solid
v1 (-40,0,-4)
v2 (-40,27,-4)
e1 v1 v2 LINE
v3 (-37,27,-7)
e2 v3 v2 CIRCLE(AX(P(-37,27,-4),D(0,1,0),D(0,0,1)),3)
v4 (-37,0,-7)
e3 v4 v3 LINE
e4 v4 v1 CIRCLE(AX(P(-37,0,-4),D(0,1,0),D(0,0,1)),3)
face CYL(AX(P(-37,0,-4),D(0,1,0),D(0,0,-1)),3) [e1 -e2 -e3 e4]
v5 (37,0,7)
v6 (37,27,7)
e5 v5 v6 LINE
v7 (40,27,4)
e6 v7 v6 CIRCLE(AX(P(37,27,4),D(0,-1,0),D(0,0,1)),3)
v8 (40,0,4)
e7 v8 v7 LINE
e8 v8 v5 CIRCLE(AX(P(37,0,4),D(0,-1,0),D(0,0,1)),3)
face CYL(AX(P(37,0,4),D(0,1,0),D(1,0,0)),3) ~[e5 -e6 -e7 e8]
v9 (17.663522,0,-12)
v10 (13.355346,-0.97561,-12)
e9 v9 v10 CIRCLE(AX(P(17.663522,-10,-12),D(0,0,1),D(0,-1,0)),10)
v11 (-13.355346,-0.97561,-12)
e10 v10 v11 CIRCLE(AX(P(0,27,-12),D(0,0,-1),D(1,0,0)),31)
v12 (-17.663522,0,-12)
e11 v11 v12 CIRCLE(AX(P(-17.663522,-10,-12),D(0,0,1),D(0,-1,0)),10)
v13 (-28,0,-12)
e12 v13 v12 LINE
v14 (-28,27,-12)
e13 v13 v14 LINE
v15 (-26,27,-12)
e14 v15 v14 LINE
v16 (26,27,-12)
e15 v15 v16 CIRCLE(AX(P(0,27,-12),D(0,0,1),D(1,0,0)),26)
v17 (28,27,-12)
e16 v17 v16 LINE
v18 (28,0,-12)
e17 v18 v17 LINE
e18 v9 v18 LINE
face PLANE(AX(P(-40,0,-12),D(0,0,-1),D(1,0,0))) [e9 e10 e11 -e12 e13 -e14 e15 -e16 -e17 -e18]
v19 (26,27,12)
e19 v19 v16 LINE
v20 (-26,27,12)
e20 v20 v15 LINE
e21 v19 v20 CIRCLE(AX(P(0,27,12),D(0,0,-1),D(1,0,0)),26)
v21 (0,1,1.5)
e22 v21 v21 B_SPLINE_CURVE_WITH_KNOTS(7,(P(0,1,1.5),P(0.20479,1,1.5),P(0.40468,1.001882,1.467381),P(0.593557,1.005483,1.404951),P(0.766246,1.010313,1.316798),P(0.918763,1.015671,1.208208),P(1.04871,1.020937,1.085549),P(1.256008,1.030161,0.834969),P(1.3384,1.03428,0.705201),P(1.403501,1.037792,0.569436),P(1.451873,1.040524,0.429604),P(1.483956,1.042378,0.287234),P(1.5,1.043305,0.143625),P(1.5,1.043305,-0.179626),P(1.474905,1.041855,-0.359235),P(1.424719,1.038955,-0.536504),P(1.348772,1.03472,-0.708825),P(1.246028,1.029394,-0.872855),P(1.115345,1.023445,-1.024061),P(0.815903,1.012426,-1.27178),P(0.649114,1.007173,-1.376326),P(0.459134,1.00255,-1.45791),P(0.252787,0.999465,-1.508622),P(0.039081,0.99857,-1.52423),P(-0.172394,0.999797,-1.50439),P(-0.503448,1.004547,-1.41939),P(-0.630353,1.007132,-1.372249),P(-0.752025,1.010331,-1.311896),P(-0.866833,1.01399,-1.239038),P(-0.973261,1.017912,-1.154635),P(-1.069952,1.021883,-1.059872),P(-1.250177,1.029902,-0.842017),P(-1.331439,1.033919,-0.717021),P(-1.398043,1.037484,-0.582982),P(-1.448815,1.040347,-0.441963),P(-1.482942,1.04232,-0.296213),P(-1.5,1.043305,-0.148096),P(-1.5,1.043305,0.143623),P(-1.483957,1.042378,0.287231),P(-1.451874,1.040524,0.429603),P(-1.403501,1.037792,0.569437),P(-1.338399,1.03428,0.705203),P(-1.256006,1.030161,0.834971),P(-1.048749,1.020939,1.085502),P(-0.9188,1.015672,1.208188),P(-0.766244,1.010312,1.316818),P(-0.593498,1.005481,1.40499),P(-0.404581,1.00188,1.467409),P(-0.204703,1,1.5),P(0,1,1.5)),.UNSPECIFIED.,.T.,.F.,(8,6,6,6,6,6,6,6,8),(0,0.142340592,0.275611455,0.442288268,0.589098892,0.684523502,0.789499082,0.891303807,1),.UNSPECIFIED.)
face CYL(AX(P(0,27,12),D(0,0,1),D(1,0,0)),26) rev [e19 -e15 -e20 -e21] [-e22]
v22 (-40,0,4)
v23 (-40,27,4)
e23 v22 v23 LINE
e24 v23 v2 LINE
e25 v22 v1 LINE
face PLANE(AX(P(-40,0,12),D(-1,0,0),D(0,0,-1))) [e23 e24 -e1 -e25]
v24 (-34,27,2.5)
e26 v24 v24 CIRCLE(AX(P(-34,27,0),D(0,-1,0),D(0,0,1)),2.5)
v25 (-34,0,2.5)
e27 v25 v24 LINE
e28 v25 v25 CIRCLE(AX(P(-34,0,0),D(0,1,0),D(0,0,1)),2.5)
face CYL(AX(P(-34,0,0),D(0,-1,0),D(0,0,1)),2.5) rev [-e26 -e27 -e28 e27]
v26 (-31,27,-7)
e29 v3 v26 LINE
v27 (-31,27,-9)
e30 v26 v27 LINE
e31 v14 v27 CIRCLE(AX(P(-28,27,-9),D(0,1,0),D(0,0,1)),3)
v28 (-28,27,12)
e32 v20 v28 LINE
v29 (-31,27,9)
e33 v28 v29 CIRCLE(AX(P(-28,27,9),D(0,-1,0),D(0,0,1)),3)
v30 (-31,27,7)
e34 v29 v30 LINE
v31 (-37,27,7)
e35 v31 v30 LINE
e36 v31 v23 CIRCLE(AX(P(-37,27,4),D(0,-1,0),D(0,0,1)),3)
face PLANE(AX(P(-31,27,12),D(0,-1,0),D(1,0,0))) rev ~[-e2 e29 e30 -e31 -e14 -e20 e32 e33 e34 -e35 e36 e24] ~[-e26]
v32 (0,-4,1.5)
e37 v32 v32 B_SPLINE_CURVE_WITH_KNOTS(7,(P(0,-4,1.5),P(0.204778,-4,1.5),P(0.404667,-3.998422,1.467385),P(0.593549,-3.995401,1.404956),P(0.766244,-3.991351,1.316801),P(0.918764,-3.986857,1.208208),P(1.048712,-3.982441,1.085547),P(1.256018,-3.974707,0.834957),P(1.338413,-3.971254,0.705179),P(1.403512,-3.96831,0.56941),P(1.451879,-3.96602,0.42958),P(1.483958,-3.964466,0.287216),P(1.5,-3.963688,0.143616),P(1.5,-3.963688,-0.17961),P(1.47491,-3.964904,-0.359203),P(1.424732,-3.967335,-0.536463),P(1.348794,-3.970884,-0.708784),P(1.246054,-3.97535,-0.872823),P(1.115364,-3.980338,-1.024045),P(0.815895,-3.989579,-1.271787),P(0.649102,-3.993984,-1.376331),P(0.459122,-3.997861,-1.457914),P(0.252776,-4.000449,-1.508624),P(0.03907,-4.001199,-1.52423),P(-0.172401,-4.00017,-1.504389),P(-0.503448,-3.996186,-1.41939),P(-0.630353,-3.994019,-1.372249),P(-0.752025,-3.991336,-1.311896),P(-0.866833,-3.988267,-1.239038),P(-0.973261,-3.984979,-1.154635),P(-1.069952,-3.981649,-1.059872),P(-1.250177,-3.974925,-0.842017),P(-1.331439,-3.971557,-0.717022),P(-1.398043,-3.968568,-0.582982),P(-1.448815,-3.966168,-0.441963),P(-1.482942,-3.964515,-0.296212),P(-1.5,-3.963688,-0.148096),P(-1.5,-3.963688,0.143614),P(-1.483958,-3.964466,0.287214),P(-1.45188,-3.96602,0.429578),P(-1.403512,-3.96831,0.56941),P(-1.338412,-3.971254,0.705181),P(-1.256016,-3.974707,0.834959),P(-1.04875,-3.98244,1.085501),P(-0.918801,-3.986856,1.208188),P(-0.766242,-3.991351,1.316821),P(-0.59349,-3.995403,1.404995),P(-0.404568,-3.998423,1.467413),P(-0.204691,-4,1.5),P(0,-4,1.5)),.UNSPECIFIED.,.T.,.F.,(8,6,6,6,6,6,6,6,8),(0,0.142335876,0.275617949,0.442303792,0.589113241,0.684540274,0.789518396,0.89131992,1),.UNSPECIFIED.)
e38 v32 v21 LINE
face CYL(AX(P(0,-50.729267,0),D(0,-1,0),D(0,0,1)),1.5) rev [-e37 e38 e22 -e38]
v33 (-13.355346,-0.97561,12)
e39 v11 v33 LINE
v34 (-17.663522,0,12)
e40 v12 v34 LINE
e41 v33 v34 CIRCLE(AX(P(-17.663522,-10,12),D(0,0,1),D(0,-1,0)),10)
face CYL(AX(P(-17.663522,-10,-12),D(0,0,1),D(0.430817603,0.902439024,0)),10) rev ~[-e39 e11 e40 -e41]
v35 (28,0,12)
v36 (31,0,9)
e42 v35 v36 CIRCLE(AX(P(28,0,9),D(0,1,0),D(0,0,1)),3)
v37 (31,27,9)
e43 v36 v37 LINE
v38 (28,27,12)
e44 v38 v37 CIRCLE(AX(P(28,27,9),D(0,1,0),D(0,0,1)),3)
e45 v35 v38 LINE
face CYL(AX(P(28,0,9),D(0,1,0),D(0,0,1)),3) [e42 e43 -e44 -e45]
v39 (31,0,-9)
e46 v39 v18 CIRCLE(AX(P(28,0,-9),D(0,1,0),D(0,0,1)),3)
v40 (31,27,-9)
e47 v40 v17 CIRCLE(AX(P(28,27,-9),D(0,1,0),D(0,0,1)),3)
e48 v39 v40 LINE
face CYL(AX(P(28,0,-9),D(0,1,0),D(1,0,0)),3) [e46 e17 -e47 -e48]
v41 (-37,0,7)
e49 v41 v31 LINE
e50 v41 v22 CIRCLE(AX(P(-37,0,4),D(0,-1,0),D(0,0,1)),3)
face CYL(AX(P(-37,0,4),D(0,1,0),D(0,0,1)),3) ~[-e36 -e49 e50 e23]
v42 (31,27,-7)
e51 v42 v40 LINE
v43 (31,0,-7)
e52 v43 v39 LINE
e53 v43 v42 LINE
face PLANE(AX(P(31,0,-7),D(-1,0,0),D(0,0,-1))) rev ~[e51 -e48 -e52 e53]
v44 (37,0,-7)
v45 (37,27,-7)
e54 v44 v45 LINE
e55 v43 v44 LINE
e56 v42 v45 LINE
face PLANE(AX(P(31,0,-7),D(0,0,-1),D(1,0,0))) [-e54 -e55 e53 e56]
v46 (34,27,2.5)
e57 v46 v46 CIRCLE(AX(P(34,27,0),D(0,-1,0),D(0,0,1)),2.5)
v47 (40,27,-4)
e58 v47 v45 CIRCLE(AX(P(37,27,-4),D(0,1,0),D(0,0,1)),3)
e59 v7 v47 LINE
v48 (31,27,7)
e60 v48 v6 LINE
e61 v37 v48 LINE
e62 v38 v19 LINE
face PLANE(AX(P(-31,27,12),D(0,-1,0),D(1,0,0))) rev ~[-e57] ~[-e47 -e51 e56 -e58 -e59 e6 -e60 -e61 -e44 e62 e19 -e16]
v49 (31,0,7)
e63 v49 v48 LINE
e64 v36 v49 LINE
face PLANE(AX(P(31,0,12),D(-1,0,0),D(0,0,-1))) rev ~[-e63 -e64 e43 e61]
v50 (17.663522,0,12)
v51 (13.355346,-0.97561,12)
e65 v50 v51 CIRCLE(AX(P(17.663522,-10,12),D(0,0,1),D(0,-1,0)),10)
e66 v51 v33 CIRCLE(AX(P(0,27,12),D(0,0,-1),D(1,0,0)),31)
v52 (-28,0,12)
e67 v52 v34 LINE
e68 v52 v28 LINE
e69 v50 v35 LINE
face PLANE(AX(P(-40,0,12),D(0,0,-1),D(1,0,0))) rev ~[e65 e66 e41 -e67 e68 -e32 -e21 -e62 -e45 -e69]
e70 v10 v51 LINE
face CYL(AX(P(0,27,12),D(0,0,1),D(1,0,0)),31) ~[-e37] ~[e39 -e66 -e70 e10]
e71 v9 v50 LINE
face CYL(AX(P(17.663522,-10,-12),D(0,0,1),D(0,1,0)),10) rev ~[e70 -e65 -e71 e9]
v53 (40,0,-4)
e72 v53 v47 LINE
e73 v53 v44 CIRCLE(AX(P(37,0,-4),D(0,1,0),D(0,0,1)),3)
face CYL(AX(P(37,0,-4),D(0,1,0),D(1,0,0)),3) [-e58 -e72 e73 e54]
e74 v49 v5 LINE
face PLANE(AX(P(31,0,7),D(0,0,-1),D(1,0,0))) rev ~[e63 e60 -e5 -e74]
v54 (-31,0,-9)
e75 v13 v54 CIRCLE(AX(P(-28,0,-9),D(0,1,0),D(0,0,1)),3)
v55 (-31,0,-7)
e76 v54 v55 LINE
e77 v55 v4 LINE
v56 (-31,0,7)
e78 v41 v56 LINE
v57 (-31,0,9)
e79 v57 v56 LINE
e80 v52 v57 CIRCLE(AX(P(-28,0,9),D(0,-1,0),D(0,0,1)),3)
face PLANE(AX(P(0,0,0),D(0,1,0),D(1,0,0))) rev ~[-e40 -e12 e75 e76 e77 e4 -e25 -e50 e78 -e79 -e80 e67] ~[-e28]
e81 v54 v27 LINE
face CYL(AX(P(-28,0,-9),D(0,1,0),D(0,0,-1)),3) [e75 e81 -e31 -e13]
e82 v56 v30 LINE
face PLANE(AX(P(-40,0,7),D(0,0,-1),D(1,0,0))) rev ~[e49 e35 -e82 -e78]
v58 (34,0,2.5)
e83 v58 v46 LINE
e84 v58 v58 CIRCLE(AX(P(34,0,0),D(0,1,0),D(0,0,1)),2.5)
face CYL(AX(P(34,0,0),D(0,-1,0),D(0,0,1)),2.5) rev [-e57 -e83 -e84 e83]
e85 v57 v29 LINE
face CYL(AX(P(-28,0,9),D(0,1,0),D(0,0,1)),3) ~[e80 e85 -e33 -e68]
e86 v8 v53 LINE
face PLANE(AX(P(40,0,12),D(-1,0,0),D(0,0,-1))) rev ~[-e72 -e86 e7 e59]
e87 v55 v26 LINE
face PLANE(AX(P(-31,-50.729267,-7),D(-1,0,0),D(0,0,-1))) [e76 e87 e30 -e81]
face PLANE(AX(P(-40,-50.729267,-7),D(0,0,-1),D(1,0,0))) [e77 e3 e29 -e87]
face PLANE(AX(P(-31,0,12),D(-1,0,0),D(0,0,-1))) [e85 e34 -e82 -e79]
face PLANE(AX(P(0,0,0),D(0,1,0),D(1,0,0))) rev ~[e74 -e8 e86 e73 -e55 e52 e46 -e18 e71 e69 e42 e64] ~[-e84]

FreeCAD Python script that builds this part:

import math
import FreeCAD as App
import Part
import Sketcher
from FreeCAD import Vector


def edges_at(feature, points):
    """Names of the edges that pass closest to the given points."""
    edges = feature.Shape.Edges
    near = lambda p: min(range(len(edges)), key=lambda i: edges[i].distToShape(Part.Vertex(*p))[0])
    return sorted({f"Edge{near(p) + 1}" for p in points})

doc = App.newDocument("Part")
body = doc.addObject("PartDesign::Body", "Body")

sketch1 = body.newObject("Sketcher::SketchObject", "Sketch")
sketch1.AttachmentSupport = (doc.getObject("XZ_Plane"), [""])
sketch1.MapMode = "FlatFace"
sketch1.addGeometry(Part.LineSegment(Vector(-40, -12, 0), Vector(-40, 12, 0)), False)
sketch1.addGeometry(Part.LineSegment(Vector(-40, 12, 0), Vector(40, 12, 0)), False)
sketch1.addGeometry(Part.LineSegment(Vector(40, 12, 0), Vector(40, -12, 0)), False)
sketch1.addGeometry(Part.LineSegment(Vector(40, -12, 0), Vector(-40, -12, 0)), False)
sketch1.addConstraint(Sketcher.Constraint("Coincident", 0, 2, 1, 1))
sketch1.addConstraint(Sketcher.Constraint("Coincident", 1, 2, 2, 1))
sketch1.addConstraint(Sketcher.Constraint("Coincident", 2, 2, 3, 1))
sketch1.addConstraint(Sketcher.Constraint("Coincident", 3, 2, 0, 1))
sketch1.addConstraint(Sketcher.Constraint("Vertical", 0))
sketch1.addConstraint(Sketcher.Constraint("Horizontal", 1))
sketch1.addConstraint(Sketcher.Constraint("Vertical", 2))
sketch1.addConstraint(Sketcher.Constraint("Horizontal", 3))
sketch1.addConstraint(Sketcher.Constraint("Symmetric", 0, 2, 2, 2, -1, 1))
sketch1.addConstraint(Sketcher.Constraint("DistanceX", 1, 1, 1, 2, 80.0))
sketch1.addConstraint(Sketcher.Constraint("DistanceY", 0, 1, 0, 2, 24.0))
pad1 = body.newObject("PartDesign::Pad", "Pad")
pad1.Profile = sketch1
pad1.Length = 27
pad1.Reversed = True

sketch2 = body.newObject("Sketcher::SketchObject", "Sketch001")
sketch2.AttachmentSupport = (doc.getObject("XY_Plane"), [""])
sketch2.MapMode = "FlatFace"
sketch2.AttachmentOffset = App.Placement(Vector(0, 0, 12), App.Rotation())
sketch2.addGeometry(Part.LineSegment(Vector(31, 27, 0), Vector(-31, 27, 0)), False)
sketch2.addGeometry(Part.ArcOfCircle(Part.Circle(Vector(0, 27, 0), Vector(0, 0, 1), 31), math.radians(180), math.radians(360)), False)
sketch2.addConstraint(Sketcher.Constraint("Coincident", 0, 1, 1, 2))
sketch2.addConstraint(Sketcher.Constraint("Coincident", 1, 1, 0, 2))
sketch2.addConstraint(Sketcher.Constraint("Horizontal", 0))
sketch2.addConstraint(Sketcher.Constraint("PointOnObject", 1, 3, -2))
sketch2.addConstraint(Sketcher.Constraint("Horizontal", 1, 3, 0, 1))
sketch2.addConstraint(Sketcher.Constraint("Radius", 1, 31.0))
sketch2.addConstraint(Sketcher.Constraint("DistanceY", -1, 1, 1, 3, 27.0))
pad2 = body.newObject("PartDesign::Pad", "Pad001")
pad2.Profile = sketch2
pad2.Type = "UpToLast"
pad2.Reversed = True

sketch3 = body.newObject("Sketcher::SketchObject", "Sketch002")
sketch3.AttachmentSupport = (doc.getObject("XY_Plane"), [""])
sketch3.MapMode = "FlatFace"
sketch3.AttachmentOffset = App.Placement(Vector(0, 0, 12), App.Rotation())
sketch3.addGeometry(Part.LineSegment(Vector(26, 27, 0), Vector(-26, 27, 0)), False)
sketch3.addGeometry(Part.ArcOfCircle(Part.Circle(Vector(0, 27, 0), Vector(0, 0, 1), 26), math.radians(180), math.radians(360)), False)
sketch3.addConstraint(Sketcher.Constraint("Coincident", 0, 1, 1, 2))
sketch3.addConstraint(Sketcher.Constraint("Coincident", 1, 1, 0, 2))
sketch3.addConstraint(Sketcher.Constraint("Horizontal", 0))
sketch3.addConstraint(Sketcher.Constraint("PointOnObject", 1, 3, -2))
sketch3.addConstraint(Sketcher.Constraint("Horizontal", 1, 3, 0, 1))
sketch3.addConstraint(Sketcher.Constraint("Radius", 1, 26.0))
sketch3.addConstraint(Sketcher.Constraint("DistanceY", -1, 1, 1, 3, 27.0))
pocket1 = body.newObject("PartDesign::Pocket", "Pocket")
pocket1.Profile = sketch3
pocket1.Type = "ThroughAll"

sketch4 = body.newObject("Sketcher::SketchObject", "Sketch003")
sketch4.AttachmentSupport = (doc.getObject("XZ_Plane"), [""])
sketch4.MapMode = "FlatFace"
sketch4.addGeometry(Part.Circle(Vector(0, 0, 0), Vector(0, 0, 1), 1.5), False)
sketch4.addConstraint(Sketcher.Constraint("Coincident", 0, 3, -1, 1))
sketch4.addConstraint(Sketcher.Constraint("Diameter", 0, 3.0))
pocket2 = body.newObject("PartDesign::Pocket", "Pocket001")
pocket2.Profile = sketch4
pocket2.Type = "ThroughAll"
pocket2.Midplane = True

sketch5 = body.newObject("Sketcher::SketchObject", "Sketch004")
sketch5.AttachmentSupport = (doc.getObject("XZ_Plane"), [""])
sketch5.MapMode = "FlatFace"
sketch5.addGeometry(Part.LineSegment(Vector(-40, -12, 0), Vector(-40, -7, 0)), False)
sketch5.addGeometry(Part.LineSegment(Vector(-40, -7, 0), Vector(-31, -7, 0)), False)
sketch5.addGeometry(Part.LineSegment(Vector(-31, -7, 0), Vector(-31, -12, 0)), False)
sketch5.addGeometry(Part.LineSegment(Vector(-31, -12, 0), Vector(-40, -12, 0)), False)
sketch5.addConstraint(Sketcher.Constraint("Coincident", 0, 2, 1, 1))
sketch5.addConstraint(Sketcher.Constraint("Coincident", 1, 2, 2, 1))
sketch5.addConstraint(Sketcher.Constraint("Coincident", 2, 2, 3, 1))
sketch5.addConstraint(Sketcher.Constraint("Coincident", 3, 2, 0, 1))
sketch5.addConstraint(Sketcher.Constraint("Vertical", 0))
sketch5.addConstraint(Sketcher.Constraint("Horizontal", 1))
sketch5.addConstraint(Sketcher.Constraint("Vertical", 2))
sketch5.addConstraint(Sketcher.Constraint("Horizontal", 3))
sketch5.addConstraint(Sketcher.Constraint("DistanceX", 1, 1, 1, 2, 9.0))
sketch5.addConstraint(Sketcher.Constraint("DistanceY", 0, 1, 0, 2, 5.0))
sketch5.addConstraint(Sketcher.Constraint("DistanceX", 0, 2, -1, 1, 40.0))
sketch5.addConstraint(Sketcher.Constraint("DistanceY", 0, 2, -1, 1, 7.0))
pocket3 = body.newObject("PartDesign::Pocket", "Pocket002")
pocket3.Profile = sketch5
pocket3.Type = "ThroughAll"
pocket3.Midplane = True

sketch6 = body.newObject("Sketcher::SketchObject", "Sketch005")
sketch6.AttachmentSupport = (doc.getObject("XZ_Plane"), [""])
sketch6.MapMode = "FlatFace"
sketch6.addGeometry(Part.LineSegment(Vector(-40, 7, 0), Vector(-40, 12, 0)), False)
sketch6.addGeometry(Part.LineSegment(Vector(-40, 12, 0), Vector(-31, 12, 0)), False)
sketch6.addGeometry(Part.LineSegment(Vector(-31, 12, 0), Vector(-31, 7, 0)), False)
sketch6.addGeometry(Part.LineSegment(Vector(-31, 7, 0), Vector(-40, 7, 0)), False)
sketch6.addConstraint(Sketcher.Constraint("Coincident", 0, 2, 1, 1))
sketch6.addConstraint(Sketcher.Constraint("Coincident", 1, 2, 2, 1))
sketch6.addConstraint(Sketcher.Constraint("Coincident", 2, 2, 3, 1))
sketch6.addConstraint(Sketcher.Constraint("Coincident", 3, 2, 0, 1))
sketch6.addConstraint(Sketcher.Constraint("Vertical", 0))
sketch6.addConstraint(Sketcher.Constraint("Horizontal", 1))
sketch6.addConstraint(Sketcher.Constraint("Vertical", 2))
sketch6.addConstraint(Sketcher.Constraint("Horizontal", 3))
sketch6.addConstraint(Sketcher.Constraint("DistanceX", 1, 1, 1, 2, 9.0))
sketch6.addConstraint(Sketcher.Constraint("DistanceY", 0, 1, 0, 2, 5.0))
sketch6.addConstraint(Sketcher.Constraint("DistanceX", 0, 2, -1, 1, 40.0))
sketch6.addConstraint(Sketcher.Constraint("DistanceY", -1, 1, 0, 2, 12.0))
pocket4 = body.newObject("PartDesign::Pocket", "Pocket003")
pocket4.Profile = sketch6
pocket4.Type = "ThroughAll"

sketch7 = body.newObject("Sketcher::SketchObject", "Sketch006")
sketch7.AttachmentSupport = (doc.getObject("XZ_Plane"), [""])
sketch7.MapMode = "FlatFace"
sketch7.addGeometry(Part.LineSegment(Vector(31, -12, 0), Vector(31, -7, 0)), False)
sketch7.addGeometry(Part.LineSegment(Vector(31, -7, 0), Vector(40, -7, 0)), False)
sketch7.addGeometry(Part.LineSegment(Vector(40, -7, 0), Vector(40, -12, 0)), False)
sketch7.addGeometry(Part.LineSegment(Vector(40, -12, 0), Vector(31, -12, 0)), False)
sketch7.addConstraint(Sketcher.Constraint("Coincident", 0, 2, 1, 1))
sketch7.addConstraint(Sketcher.Constraint("Coincident", 1, 2, 2, 1))
sketch7.addConstraint(Sketcher.Constraint("Coincident", 2, 2, 3, 1))
sketch7.addConstraint(Sketcher.Constraint("Coincident", 3, 2, 0, 1))
sketch7.addConstraint(Sketcher.Constraint("Vertical", 0))
sketch7.addConstraint(Sketcher.Constraint("Horizontal", 1))
sketch7.addConstraint(Sketcher.Constraint("Vertical", 2))
sketch7.addConstraint(Sketcher.Constraint("Horizontal", 3))
sketch7.addConstraint(Sketcher.Constraint("DistanceX", 1, 1, 1, 2, 9.0))
sketch7.addConstraint(Sketcher.Constraint("DistanceY", 0, 1, 0, 2, 5.0))
sketch7.addConstraint(Sketcher.Constraint("DistanceX", -1, 1, 0, 2, 31.0))
sketch7.addConstraint(Sketcher.Constraint("DistanceY", 0, 2, -1, 1, 7.0))
pocket5 = body.newObject("PartDesign::Pocket", "Pocket004")
pocket5.Profile = sketch7
pocket5.Type = "ThroughAll"

sketch8 = body.newObject("Sketcher::SketchObject", "Sketch007")
sketch8.AttachmentSupport = (doc.getObject("XZ_Plane"), [""])
sketch8.MapMode = "FlatFace"
sketch8.addGeometry(Part.LineSegment(Vector(31, 7, 0), Vector(31, 12, 0)), False)
sketch8.addGeometry(Part.LineSegment(Vector(31, 12, 0), Vector(40, 12, 0)), False)
sketch8.addGeometry(Part.LineSegment(Vector(40, 12, 0), Vector(40, 7, 0)), False)
sketch8.addGeometry(Part.LineSegment(Vector(40, 7, 0), Vector(31, 7, 0)), False)
sketch8.addConstraint(Sketcher.Constraint("Coincident", 0, 2, 1, 1))
sketch8.addConstraint(Sketcher.Constraint("Coincident", 1, 2, 2, 1))
sketch8.addConstraint(Sketcher.Constraint("Coincident", 2, 2, 3, 1))
sketch8.addConstraint(Sketcher.Constraint("Coincident", 3, 2, 0, 1))
sketch8.addConstraint(Sketcher.Constraint("Vertical", 0))
sketch8.addConstraint(Sketcher.Constraint("Horizontal", 1))
sketch8.addConstraint(Sketcher.Constraint("Vertical", 2))
sketch8.addConstraint(Sketcher.Constraint("Horizontal", 3))
sketch8.addConstraint(Sketcher.Constraint("DistanceX", 1, 1, 1, 2, 9.0))
sketch8.addConstraint(Sketcher.Constraint("DistanceY", 0, 1, 0, 2, 5.0))
sketch8.addConstraint(Sketcher.Constraint("DistanceX", -1, 1, 0, 2, 31.0))
sketch8.addConstraint(Sketcher.Constraint("DistanceY", -1, 1, 0, 2, 12.0))
pocket6 = body.newObject("PartDesign::Pocket", "Pocket005")
pocket6.Profile = sketch8
pocket6.Type = "ThroughAll"

sketch9 = body.newObject("Sketcher::SketchObject", "Sketch008")
sketch9.AttachmentSupport = (doc.getObject("XZ_Plane"), [""])
sketch9.MapMode = "FlatFace"
sketch9.addGeometry(Part.Circle(Vector(-34, 0, 0), Vector(0, 0, 1), 2.5), False)
sketch9.addConstraint(Sketcher.Constraint("PointOnObject", 0, 3, -1))
sketch9.addConstraint(Sketcher.Constraint("Diameter", 0, 5.0))
sketch9.addConstraint(Sketcher.Constraint("DistanceX", 0, 3, -1, 1, 34.0))
pocket7 = body.newObject("PartDesign::Pocket", "Pocket006")
pocket7.Profile = sketch9
pocket7.Type = "ThroughAll"

sketch10 = body.newObject("Sketcher::SketchObject", "Sketch009")
sketch10.AttachmentSupport = (doc.getObject("XZ_Plane"), [""])
sketch10.MapMode = "FlatFace"
sketch10.addGeometry(Part.Circle(Vector(34, 0, 0), Vector(0, 0, 1), 2.5), False)
sketch10.addConstraint(Sketcher.Constraint("PointOnObject", 0, 3, -1))
sketch10.addConstraint(Sketcher.Constraint("Diameter", 0, 5.0))
sketch10.addConstraint(Sketcher.Constraint("DistanceX", -1, 1, 0, 3, 34.0))
pocket8 = body.newObject("PartDesign::Pocket", "Pocket007")
pocket8.Profile = sketch10
pocket8.Type = "ThroughAll"
doc.recompute()

fillet = body.newObject("PartDesign::Fillet", "Fillet")
fillet.Base = (pocket8, edges_at(pocket8, [
    (40, 13.5, 7),
    (31, 13.5, 12),
    (-40, 13.5, -7),
    (-31, 13.5, -12),
    (-40, 13.5, 7),
    (-31, 13.5, 12),
    (40, 13.5, -7),
    (31, 13.5, -12),
]))
fillet.Radius = 3
doc.recompute()

fillet2 = body.newObject("PartDesign::Fillet", "Fillet001")
fillet2.Base = (fillet, edges_at(fillet, [(-15.232, 0, 0), (15.232, 0, 0)]))
fillet2.Radius = 10

doc.recompute()
